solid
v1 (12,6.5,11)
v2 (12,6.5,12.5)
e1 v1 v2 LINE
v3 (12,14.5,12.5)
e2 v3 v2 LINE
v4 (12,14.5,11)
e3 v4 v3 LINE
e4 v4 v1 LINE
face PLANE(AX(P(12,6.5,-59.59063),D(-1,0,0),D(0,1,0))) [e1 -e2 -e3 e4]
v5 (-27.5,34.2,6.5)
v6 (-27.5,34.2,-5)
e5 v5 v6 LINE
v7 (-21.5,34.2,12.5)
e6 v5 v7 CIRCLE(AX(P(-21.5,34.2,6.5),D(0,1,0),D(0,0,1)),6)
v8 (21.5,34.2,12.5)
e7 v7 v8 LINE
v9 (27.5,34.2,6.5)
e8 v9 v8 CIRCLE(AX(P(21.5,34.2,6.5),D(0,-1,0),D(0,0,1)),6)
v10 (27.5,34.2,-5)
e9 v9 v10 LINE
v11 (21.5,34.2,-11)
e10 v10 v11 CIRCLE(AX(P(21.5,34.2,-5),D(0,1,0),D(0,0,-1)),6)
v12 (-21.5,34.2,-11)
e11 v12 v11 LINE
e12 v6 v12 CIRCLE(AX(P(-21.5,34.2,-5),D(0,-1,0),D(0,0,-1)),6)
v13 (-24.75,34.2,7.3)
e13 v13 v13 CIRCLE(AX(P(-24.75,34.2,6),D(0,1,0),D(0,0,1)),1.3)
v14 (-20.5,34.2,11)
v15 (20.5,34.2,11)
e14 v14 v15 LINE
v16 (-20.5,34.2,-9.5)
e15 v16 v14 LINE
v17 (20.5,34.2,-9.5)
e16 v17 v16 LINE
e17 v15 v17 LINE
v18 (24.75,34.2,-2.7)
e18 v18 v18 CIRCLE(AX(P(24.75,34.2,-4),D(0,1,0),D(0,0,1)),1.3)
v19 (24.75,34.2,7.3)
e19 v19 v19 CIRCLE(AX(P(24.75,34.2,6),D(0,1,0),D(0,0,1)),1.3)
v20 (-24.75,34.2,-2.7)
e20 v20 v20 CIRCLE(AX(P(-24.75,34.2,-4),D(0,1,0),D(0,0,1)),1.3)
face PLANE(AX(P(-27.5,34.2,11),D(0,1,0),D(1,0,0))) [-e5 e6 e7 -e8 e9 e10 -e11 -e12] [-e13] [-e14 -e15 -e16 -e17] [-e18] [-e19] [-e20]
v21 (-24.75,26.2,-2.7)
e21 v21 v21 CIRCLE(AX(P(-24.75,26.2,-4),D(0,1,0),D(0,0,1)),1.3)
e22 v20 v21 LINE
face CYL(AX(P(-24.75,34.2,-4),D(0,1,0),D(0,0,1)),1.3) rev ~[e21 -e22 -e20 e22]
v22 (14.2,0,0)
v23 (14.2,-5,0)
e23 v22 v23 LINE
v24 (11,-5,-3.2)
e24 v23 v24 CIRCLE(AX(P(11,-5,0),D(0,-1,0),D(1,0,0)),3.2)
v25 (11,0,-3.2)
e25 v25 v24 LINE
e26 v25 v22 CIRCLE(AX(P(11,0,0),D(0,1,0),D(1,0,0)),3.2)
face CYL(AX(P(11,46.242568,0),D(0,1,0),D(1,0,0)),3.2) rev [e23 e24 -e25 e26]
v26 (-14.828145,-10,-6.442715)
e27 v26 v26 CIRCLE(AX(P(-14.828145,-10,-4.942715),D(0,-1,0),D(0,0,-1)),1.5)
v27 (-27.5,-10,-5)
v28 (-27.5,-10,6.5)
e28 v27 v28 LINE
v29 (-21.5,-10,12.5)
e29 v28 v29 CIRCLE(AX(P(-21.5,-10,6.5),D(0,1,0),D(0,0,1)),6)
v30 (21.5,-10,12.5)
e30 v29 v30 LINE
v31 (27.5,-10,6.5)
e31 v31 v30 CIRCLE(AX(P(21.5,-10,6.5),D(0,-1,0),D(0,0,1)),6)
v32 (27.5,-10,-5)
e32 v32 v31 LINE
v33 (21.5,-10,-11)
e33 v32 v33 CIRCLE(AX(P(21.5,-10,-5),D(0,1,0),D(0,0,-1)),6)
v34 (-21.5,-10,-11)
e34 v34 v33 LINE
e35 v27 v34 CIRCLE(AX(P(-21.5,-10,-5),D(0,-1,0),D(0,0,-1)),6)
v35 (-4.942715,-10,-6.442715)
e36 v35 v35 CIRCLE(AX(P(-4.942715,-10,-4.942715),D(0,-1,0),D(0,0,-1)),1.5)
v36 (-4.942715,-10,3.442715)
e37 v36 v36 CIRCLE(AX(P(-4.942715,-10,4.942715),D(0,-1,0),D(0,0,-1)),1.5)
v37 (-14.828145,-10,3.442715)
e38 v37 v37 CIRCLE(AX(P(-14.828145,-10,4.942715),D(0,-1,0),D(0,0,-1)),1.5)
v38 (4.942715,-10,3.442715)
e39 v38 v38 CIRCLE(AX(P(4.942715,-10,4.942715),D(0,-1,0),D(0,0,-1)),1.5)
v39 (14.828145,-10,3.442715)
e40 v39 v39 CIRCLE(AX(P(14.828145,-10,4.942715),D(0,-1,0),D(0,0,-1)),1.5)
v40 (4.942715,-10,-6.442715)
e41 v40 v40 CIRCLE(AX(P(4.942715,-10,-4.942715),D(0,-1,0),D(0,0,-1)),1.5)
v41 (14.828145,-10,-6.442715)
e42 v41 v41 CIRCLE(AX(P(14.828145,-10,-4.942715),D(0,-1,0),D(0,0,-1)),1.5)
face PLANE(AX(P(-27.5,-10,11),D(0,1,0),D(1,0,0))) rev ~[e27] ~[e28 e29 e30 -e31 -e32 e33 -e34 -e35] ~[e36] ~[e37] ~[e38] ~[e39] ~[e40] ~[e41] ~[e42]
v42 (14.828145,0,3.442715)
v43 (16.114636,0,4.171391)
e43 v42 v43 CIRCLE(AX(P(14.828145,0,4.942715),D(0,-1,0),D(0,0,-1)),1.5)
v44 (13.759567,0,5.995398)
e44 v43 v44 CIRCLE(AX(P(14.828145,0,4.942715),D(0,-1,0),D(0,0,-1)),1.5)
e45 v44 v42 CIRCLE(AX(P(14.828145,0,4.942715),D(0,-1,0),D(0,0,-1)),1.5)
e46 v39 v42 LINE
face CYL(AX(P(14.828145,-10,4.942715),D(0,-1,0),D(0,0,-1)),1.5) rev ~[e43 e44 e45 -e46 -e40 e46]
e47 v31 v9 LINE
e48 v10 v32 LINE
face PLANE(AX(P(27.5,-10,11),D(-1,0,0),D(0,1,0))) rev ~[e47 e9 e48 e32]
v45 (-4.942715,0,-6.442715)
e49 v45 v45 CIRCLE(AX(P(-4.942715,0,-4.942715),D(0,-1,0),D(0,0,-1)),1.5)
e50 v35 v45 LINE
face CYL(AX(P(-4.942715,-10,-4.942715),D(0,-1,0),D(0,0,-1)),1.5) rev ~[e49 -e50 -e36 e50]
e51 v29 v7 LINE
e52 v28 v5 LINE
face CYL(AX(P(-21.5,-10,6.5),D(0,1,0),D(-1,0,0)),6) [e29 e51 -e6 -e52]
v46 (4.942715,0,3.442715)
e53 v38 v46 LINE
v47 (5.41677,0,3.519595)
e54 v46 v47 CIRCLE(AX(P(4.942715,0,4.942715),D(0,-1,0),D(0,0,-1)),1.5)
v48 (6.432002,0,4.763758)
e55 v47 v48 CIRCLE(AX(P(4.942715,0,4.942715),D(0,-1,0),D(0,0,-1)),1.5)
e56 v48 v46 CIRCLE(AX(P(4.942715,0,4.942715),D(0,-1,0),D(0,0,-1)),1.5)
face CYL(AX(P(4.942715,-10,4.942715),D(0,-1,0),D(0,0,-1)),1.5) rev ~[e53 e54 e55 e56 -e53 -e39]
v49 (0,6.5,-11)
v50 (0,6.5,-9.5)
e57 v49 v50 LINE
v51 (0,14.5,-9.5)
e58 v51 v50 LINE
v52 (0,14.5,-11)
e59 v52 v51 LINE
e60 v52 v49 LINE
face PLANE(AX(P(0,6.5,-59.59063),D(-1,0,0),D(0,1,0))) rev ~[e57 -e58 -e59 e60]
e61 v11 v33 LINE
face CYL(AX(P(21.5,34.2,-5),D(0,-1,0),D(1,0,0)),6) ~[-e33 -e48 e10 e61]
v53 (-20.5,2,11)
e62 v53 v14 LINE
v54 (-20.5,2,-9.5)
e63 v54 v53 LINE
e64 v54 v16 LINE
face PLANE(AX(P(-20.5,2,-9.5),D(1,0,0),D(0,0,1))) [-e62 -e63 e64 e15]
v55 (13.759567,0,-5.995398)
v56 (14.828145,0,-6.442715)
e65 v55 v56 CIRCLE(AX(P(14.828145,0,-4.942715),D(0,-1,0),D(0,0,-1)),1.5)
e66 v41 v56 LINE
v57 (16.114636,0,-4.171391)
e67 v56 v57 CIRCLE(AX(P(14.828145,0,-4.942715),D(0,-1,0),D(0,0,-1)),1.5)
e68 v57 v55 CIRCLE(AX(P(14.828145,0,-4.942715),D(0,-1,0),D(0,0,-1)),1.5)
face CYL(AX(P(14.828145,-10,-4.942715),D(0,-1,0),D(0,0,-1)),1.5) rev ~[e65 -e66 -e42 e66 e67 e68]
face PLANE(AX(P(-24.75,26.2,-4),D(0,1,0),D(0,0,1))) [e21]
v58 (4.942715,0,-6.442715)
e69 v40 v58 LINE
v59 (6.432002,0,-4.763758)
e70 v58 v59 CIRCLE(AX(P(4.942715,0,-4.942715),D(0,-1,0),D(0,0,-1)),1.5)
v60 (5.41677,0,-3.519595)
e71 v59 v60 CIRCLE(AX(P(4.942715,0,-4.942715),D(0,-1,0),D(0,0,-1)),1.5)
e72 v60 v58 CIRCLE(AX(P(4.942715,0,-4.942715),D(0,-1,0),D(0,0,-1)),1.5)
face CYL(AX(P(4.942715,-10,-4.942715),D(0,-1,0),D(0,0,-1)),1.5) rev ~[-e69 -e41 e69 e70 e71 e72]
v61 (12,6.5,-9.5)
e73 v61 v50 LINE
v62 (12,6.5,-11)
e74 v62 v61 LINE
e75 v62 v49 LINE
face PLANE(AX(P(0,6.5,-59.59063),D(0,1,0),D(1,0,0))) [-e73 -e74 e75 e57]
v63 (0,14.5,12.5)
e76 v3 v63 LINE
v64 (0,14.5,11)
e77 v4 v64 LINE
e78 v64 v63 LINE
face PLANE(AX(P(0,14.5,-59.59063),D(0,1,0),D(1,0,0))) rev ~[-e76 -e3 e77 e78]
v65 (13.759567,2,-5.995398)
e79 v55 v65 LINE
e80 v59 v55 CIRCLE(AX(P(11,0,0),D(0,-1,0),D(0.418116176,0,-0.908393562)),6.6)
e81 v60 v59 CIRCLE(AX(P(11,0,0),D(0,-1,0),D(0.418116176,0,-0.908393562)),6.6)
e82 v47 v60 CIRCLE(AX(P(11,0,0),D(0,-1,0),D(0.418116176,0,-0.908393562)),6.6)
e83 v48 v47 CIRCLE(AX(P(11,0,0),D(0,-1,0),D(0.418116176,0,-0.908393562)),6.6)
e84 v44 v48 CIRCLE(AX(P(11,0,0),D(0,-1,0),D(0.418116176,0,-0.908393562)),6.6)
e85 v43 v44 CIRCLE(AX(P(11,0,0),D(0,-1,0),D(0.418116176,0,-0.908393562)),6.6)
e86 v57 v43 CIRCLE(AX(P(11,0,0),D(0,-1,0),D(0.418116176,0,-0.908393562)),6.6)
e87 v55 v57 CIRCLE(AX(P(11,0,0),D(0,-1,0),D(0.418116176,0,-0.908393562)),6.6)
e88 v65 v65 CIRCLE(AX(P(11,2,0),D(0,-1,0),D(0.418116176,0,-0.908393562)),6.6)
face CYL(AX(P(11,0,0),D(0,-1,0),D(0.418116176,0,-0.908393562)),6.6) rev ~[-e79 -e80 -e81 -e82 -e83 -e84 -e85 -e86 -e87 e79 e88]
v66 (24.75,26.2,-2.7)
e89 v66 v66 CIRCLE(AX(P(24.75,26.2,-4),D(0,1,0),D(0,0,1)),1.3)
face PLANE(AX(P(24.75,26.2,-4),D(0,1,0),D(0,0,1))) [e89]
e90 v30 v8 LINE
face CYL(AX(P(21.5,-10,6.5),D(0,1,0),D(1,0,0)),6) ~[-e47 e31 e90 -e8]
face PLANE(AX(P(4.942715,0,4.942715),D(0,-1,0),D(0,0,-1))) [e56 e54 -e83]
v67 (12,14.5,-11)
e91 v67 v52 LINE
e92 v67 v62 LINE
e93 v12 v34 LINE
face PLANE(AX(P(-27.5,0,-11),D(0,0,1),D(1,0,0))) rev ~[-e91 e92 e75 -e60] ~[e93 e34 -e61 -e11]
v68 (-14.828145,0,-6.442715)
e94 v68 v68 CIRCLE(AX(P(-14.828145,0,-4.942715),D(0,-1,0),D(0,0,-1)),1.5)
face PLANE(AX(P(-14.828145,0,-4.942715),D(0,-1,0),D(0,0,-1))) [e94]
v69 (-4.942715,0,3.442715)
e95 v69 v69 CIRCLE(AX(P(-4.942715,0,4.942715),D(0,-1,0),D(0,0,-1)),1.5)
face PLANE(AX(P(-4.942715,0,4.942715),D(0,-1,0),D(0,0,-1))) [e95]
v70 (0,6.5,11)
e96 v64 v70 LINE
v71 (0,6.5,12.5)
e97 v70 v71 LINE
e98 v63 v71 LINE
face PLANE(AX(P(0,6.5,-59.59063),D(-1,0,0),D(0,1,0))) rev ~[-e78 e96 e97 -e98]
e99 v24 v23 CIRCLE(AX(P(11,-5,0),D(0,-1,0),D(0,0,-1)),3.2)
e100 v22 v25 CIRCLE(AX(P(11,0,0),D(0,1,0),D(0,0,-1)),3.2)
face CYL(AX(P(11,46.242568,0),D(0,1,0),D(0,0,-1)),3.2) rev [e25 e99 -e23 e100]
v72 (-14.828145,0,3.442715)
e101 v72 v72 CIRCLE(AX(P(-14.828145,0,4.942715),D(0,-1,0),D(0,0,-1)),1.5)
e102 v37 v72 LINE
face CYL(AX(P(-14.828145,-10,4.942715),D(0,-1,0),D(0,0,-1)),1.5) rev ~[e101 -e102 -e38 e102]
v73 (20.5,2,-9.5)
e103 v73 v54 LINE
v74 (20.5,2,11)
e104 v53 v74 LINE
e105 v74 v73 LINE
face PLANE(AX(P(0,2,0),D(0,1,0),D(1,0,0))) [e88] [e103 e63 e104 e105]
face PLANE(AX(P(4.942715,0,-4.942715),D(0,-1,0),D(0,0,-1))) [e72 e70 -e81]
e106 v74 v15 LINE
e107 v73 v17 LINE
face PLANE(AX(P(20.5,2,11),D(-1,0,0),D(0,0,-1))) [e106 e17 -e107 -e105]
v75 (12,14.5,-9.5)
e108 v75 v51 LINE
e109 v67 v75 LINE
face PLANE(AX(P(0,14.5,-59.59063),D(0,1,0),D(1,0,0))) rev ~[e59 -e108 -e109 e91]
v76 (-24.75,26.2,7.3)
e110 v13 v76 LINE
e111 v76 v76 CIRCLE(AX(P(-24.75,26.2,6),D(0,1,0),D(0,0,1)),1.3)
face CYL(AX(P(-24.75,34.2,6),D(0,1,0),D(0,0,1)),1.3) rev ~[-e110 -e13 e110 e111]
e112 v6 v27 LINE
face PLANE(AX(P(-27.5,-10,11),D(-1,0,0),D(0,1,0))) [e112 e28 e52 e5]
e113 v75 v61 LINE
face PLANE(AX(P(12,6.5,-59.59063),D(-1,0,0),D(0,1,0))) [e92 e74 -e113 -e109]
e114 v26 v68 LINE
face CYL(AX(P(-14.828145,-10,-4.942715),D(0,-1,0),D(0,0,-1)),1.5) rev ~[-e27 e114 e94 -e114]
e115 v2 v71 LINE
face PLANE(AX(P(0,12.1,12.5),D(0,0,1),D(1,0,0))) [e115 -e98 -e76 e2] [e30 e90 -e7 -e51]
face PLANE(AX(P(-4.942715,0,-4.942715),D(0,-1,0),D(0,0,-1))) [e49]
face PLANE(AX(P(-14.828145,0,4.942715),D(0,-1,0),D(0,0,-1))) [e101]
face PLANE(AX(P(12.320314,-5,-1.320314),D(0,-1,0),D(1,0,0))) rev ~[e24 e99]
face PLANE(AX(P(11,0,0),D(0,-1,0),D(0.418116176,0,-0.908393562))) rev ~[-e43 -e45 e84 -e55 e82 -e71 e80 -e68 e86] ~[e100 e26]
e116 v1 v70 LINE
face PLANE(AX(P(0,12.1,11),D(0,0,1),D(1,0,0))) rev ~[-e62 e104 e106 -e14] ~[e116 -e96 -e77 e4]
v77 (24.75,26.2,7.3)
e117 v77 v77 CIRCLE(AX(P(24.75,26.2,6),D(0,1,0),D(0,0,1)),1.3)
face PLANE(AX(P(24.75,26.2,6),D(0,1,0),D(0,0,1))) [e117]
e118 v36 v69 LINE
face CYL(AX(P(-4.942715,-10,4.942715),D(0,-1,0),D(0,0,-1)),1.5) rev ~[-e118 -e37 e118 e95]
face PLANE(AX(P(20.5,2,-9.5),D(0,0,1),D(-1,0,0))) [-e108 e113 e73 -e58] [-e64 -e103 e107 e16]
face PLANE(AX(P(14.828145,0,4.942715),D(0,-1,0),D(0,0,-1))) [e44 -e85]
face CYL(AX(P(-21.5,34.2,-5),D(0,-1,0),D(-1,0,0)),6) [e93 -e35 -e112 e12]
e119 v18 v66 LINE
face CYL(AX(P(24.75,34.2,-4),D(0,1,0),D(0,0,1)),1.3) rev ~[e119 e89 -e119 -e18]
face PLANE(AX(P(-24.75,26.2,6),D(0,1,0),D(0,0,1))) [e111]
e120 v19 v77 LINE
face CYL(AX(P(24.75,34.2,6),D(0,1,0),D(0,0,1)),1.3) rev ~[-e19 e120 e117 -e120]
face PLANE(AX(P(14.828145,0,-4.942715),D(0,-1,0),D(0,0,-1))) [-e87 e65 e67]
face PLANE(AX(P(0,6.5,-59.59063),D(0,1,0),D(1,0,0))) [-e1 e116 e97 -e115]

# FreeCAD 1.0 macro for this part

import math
import FreeCAD as App
import Part
import Sketcher
Q = App.Units.Quantity


def edges_at(feature, points):
    """Names of the edges that pass closest to the given points."""
    edges = feature.Shape.Edges
    near = lambda p: min(range(len(edges)), key=lambda i: edges[i].distToShape(Part.Vertex(*p))[0])
    return sorted({f"Edge{near(p) + 1}" for p in points})


def add_polygon(sketch, points):
    """Adds a closed chain of lines whose ends are joined by coincident constraints."""
    first, n = sketch.GeometryCount, len(points)
    for a, b in zip(points, points[1:] + points[:1]):
        sketch.addGeometry(Part.LineSegment(App.Vector(*a, 0), App.Vector(*b, 0)), False)
    for i in range(n):
        sketch.addConstraint(Sketcher.Constraint("Coincident", first + i, 2, first + (i + 1) % n, 1))

doc = App.newDocument("Part")
body = doc.addObject("PartDesign::Body", "Body")

sketch1 = body.newObject("Sketcher::SketchObject", "Sketch")
sketch1.AttachmentSupport = (doc.getObject("XZ_Plane"), [""])
sketch1.MapMode = "FlatFace"
add_polygon(sketch1, [(-28, -11), (-28, 11), (28, 11), (28, -11)])
sketch1.addConstraint(Sketcher.Constraint("Vertical", 0))
sketch1.addConstraint(Sketcher.Constraint("Horizontal", 1))
sketch1.addConstraint(Sketcher.Constraint("Vertical", 2))
sketch1.addConstraint(Sketcher.Constraint("Horizontal", 3))
sketch1.addConstraint(Sketcher.Constraint("Symmetric", 0, 2, 2, 2, -1, 1))
sketch1.addConstraint(Sketcher.Constraint("DistanceX", 1, 1, 1, 2, Q("55 mm")))
sketch1.addConstraint(Sketcher.Constraint("DistanceY", 0, 1, 0, 2, Q("22 mm")))
pad1 = body.newObject("PartDesign::Pad", "Pad")
pad1.Profile = sketch1
pad1.Length = 2
pad1.Reversed = True

sketch2 = body.newObject("Sketcher::SketchObject", "Sketch001")
sketch2.AttachmentSupport = (doc.getObject("XZ_Plane"), [""])
sketch2.MapMode = "FlatFace"
sketch2.AttachmentOffset = App.Placement(App.Vector(0, 0, -2), App.Rotation())
add_polygon(sketch2, [(-28, -11), (-28, 11), (-20, 11), (-20, -10), (20, -10), (20, 11), (28, 11), (28, -11)])
sketch2.addConstraint(Sketcher.Constraint("Vertical", 0))
sketch2.addConstraint(Sketcher.Constraint("Horizontal", 1))
sketch2.addConstraint(Sketcher.Constraint("Vertical", 2))
sketch2.addConstraint(Sketcher.Constraint("Horizontal", 3))
sketch2.addConstraint(Sketcher.Constraint("Vertical", 4))
sketch2.addConstraint(Sketcher.Constraint("Horizontal", 5))
sketch2.addConstraint(Sketcher.Constraint("Vertical", 6))
sketch2.addConstraint(Sketcher.Constraint("Horizontal", 7))
sketch2.addConstraint(Sketcher.Constraint("Symmetric", 0, 2, 6, 2, -1, 1))
sketch2.addConstraint(Sketcher.Constraint("Symmetric", 1, 2, 4, 2, -2))
sketch2.addConstraint(Sketcher.Constraint("DistanceX", 1, 1, 1, 2, Q("7 mm")))
sketch2.addConstraint(Sketcher.Constraint("DistanceX", 3, 1, 3, 2, Q("41 mm")))
sketch2.addConstraint(Sketcher.Constraint("DistanceY", 0, 1, 0, 2, Q("22 mm")))
sketch2.addConstraint(Sketcher.Constraint("DistanceY", 2, 2, 2, 1, Q("20.5 mm")))
pad2 = body.newObject("PartDesign::Pad", "Pad001")
pad2.Profile = sketch2
pad2.Length = 32.2
pad2.Reversed = True

sketch3 = body.newObject("Sketcher::SketchObject", "Sketch002")
sketch3.AttachmentSupport = (doc.getObject("XZ_Plane"), [""])
sketch3.MapMode = "FlatFace"
sketch3.AttachmentOffset = App.Placement(App.Vector(0, 0, -34.2), App.Rotation())
sketch3.addGeometry(Part.Circle(App.Vector(-24.8, 6, 0), App.Vector(0, 0, 1), 1.3), False)
sketch3.addGeometry(Part.Circle(App.Vector(-24.8, -4, 0), App.Vector(0, 0, 1), 1.3), False)
sketch3.addGeometry(Part.Circle(App.Vector(24.8, -4, 0), App.Vector(0, 0, 1), 1.3), False)
sketch3.addGeometry(Part.Circle(App.Vector(24.8, 6, 0), App.Vector(0, 0, 1), 1.3), False)
sketch3.addConstraint(Sketcher.Constraint("Equal", 0, 1))
sketch3.addConstraint(Sketcher.Constraint("Equal", 1, 2))
sketch3.addConstraint(Sketcher.Constraint("Equal", 2, 3))
sketch3.addConstraint(Sketcher.Constraint("Symmetric", 1, 3, 2, 3, -2))
sketch3.addConstraint(Sketcher.Constraint("Symmetric", 0, 3, 3, 3, -2))
sketch3.addConstraint(Sketcher.Constraint("Vertical", 0, 3, 1, 3))
sketch3.addConstraint(Sketcher.Constraint("Diameter", 0, Q("2.6 mm")))
sketch3.addConstraint(Sketcher.Constraint("DistanceY", -1, 1, 0, 3, Q("6 mm")))
sketch3.addConstraint(Sketcher.Constraint("DistanceY", 1, 3, -1, 1, Q("4 mm")))
sketch3.addConstraint(Sketcher.Constraint("DistanceX", 1, 3, 2, 3, Q("49.5 mm")))
pocket1 = body.newObject("PartDesign::Pocket", "Pocket")
pocket1.Profile = sketch3
pocket1.Length = 8
pocket1.Reversed = True

sketch4 = body.newObject("Sketcher::SketchObject", "Sketch003")
sketch4.AttachmentSupport = (doc.getObject("XZ_Plane"), [""])
sketch4.MapMode = "FlatFace"
add_polygon(sketch4, [(-28, -11), (-28, 11), (28, 11), (28, -11)])
sketch4.addConstraint(Sketcher.Constraint("Vertical", 0))
sketch4.addConstraint(Sketcher.Constraint("Horizontal", 1))
sketch4.addConstraint(Sketcher.Constraint("Vertical", 2))
sketch4.addConstraint(Sketcher.Constraint("Horizontal", 3))
sketch4.addConstraint(Sketcher.Constraint("Symmetric", 0, 2, 2, 2, -1, 1))
sketch4.addConstraint(Sketcher.Constraint("DistanceX", 1, 1, 1, 2, Q("55 mm")))
sketch4.addConstraint(Sketcher.Constraint("DistanceY", 0, 1, 0, 2, Q("22 mm")))
pad3 = body.newObject("PartDesign::Pad", "Pad002")
pad3.Profile = sketch4
pad3.Length = 10

sketch5 = body.newObject("Sketcher::SketchObject", "Sketch004")
sketch5.AttachmentSupport = (doc.getObject("XZ_Plane"), [""])
sketch5.MapMode = "FlatFace"
sketch5.AttachmentOffset = App.Placement(App.Vector(0, 0, 10), App.Rotation())
sketch5.addGeometry(Part.Circle(App.Vector(14.8, -4.9, 0), App.Vector(0, 0, 1), 1.5), False)
sketch5.addGeometry(Part.Circle(App.Vector(14.8, 4.9, 0), App.Vector(0, 0, 1), 1.5), False)
sketch5.addGeometry(Part.Circle(App.Vector(4.9, -4.9, 0), App.Vector(0, 0, 1), 1.5), False)
sketch5.addGeometry(Part.Circle(App.Vector(4.9, 4.9, 0), App.Vector(0, 0, 1), 1.5), False)
sketch5.addGeometry(Part.Circle(App.Vector(-4.9, -4.9, 0), App.Vector(0, 0, 1), 1.5), False)
sketch5.addGeometry(Part.Circle(App.Vector(-4.9, 4.9, 0), App.Vector(0, 0, 1), 1.5), False)
sketch5.addGeometry(Part.Circle(App.Vector(-14.8, -4.9, 0), App.Vector(0, 0, 1), 1.5), False)
sketch5.addGeometry(Part.Circle(App.Vector(-14.8, 4.9, 0), App.Vector(0, 0, 1), 1.5), False)
sketch5.addConstraint(Sketcher.Constraint("Equal", 0, 1))
sketch5.addConstraint(Sketcher.Constraint("Equal", 1, 2))
sketch5.addConstraint(Sketcher.Constraint("Equal", 2, 3))
sketch5.addConstraint(Sketcher.Constraint("Equal", 3, 4))
sketch5.addConstraint(Sketcher.Constraint("Equal", 4, 5))
sketch5.addConstraint(Sketcher.Constraint("Equal", 5, 6))
sketch5.addConstraint(Sketcher.Constraint("Equal", 6, 7))
sketch5.addConstraint(Sketcher.Constraint("Symmetric", 3, 3, 4, 3, -1, 1))
sketch5.addConstraint(Sketcher.Constraint("Symmetric", 2, 3, 5, 3, -1, 1))
sketch5.addConstraint(Sketcher.Constraint("Symmetric", 1, 3, 6, 3, -1, 1))
sketch5.addConstraint(Sketcher.Constraint("Symmetric", 0, 3, 7, 3, -1, 1))
sketch5.addConstraint(Sketcher.Constraint("Symmetric", 2, 3, 4, 3, -2))
sketch5.addConstraint(Sketcher.Constraint("Symmetric", 0, 3, 6, 3, -2))
sketch5.addConstraint(Sketcher.Constraint("Horizontal", 0, 3, 2, 3))
sketch5.addConstraint(Sketcher.Constraint("Diameter", 0, Q("3 mm")))
sketch5.addConstraint(Sketcher.Constraint("DistanceY", 0, 3, 1, 3, Q("9.88543 mm")))
sketch5.addConstraint(Sketcher.Constraint("DistanceX", 2, 3, 0, 3, Q("9.88543 mm")))
sketch5.addConstraint(Sketcher.Constraint("DistanceX", 4, 3, 2, 3, Q("9.88543 mm")))
pocket2 = body.newObject("PartDesign::Pocket", "Pocket001")
pocket2.Profile = sketch5
pocket2.Length = 10

sketch6 = body.newObject("Sketcher::SketchObject", "Sketch005")
sketch6.AttachmentSupport = (doc.getObject("XZ_Plane"), [""])
sketch6.MapMode = "FlatFace"
sketch6.addGeometry(Part.ArcOfCircle(Part.Circle(App.Vector(11, 0, 0), App.Vector(0, 0, 1), 3.2), math.radians(-90), math.radians(0)), False)
sketch6.addGeometry(Part.ArcOfCircle(Part.Circle(App.Vector(11, 0, 0), App.Vector(0, 0, 1), 3.2), math.radians(0), math.radians(270)), False)
sketch6.addConstraint(Sketcher.Constraint("Tangent", 0, 1, 1, 2))
sketch6.addConstraint(Sketcher.Constraint("Coincident", 1, 1, 0, 2))
sketch6.addConstraint(Sketcher.Constraint("PointOnObject", 0, 3, -1))
sketch6.addConstraint(Sketcher.Constraint("PointOnObject", 1, 1, -1))
sketch6.addConstraint(Sketcher.Constraint("Vertical", 1, 3, 0, 1))
sketch6.addConstraint(Sketcher.Constraint("Radius", 0, Q("3.2 mm")))
sketch6.addConstraint(Sketcher.Constraint("DistanceX", -1, 1, 0, 3, Q("11 mm")))
pocket3 = body.newObject("PartDesign::Pocket", "Pocket002")
pocket3.Profile = sketch6
pocket3.Type = "TwoLengths"
pocket3.Length = 5
pocket3.Length2 = 46.242568
pocket3.Reversed = True

sketch7 = body.newObject("Sketcher::SketchObject", "Sketch006")
sketch7.AttachmentSupport = (doc.getObject("XZ_Plane"), [""])
sketch7.MapMode = "FlatFace"
sketch7.addGeometry(Part.Circle(App.Vector(11, 0, 0), App.Vector(0, 0, 1), 7), False)
sketch7.addConstraint(Sketcher.Constraint("PointOnObject", 0, 3, -1))
sketch7.addConstraint(Sketcher.Constraint("Diameter", 0, Q("13.2 mm")))
sketch7.addConstraint(Sketcher.Constraint("DistanceX", -1, 1, 0, 3, Q("11 mm")))
pocket4 = body.newObject("PartDesign::Pocket", "Pocket003")
pocket4.Profile = sketch7
pocket4.Length = 10

sketch8 = body.newObject("Sketcher::SketchObject", "Sketch007")
sketch8.AttachmentSupport = (doc.getObject("XY_Plane"), [""])
sketch8.MapMode = "FlatFace"
sketch8.AttachmentOffset = App.Placement(App.Vector(0, 0, 11), App.Rotation())
add_polygon(sketch8, [(-28, 34), (-28, -10), (28, -10), (28, 34)])
sketch8.addConstraint(Sketcher.Constraint("Vertical", 0))
sketch8.addConstraint(Sketcher.Constraint("Horizontal", 1))
sketch8.addConstraint(Sketcher.Constraint("Vertical", 2))
sketch8.addConstraint(Sketcher.Constraint("Horizontal", 3))
sketch8.addConstraint(Sketcher.Constraint("DistanceX", 1, 1, 1, 2, Q("55 mm")))
sketch8.addConstraint(Sketcher.Constraint("DistanceY", 0, 2, 0, 1, Q("44.2 mm")))
sketch8.addConstraint(Sketcher.Constraint("DistanceY", 0, 2, -1, 1, Q("10 mm")))
sketch8.addConstraint(Sketcher.Constraint("DistanceX", 0, 2, -1, 1, Q("27.5 mm")))
pad4 = body.newObject("PartDesign::Pad", "Pad003")
pad4.Profile = sketch8
pad4.Length = 1.5
doc.recompute()

fillet = body.newObject("PartDesign::Fillet", "Fillet")
fillet.Base = (pad4, edges_at(pad4, [
    (27.5, 12.1, 12.5),
    (-27.5, 12.1, 12.5),
    (-27.5, 12.1, -11),
    (27.5, 12.1, -11),
]))
fillet.Radius = 6

sketch9 = body.newObject("Sketcher::SketchObject", "Sketch008")
sketch9.AttachmentSupport = (doc.getObject("XY_Plane"), [""])
sketch9.MapMode = "FlatFace"
sketch9.AttachmentOffset = App.Placement(App.Vector(0, 0, -9.5), App.Rotation())
add_polygon(sketch9, [(0, 14), (0, 6), (12, 6), (12, 14)])
sketch9.addConstraint(Sketcher.Constraint("Vertical", 0))
sketch9.addConstraint(Sketcher.Constraint("Horizontal", 1))
sketch9.addConstraint(Sketcher.Constraint("Vertical", 2))
sketch9.addConstraint(Sketcher.Constraint("Horizontal", 3))
sketch9.addConstraint(Sketcher.Constraint("PointOnObject", 0, 2, -2))
sketch9.addConstraint(Sketcher.Constraint("DistanceX", 1, 1, 1, 2, Q("12 mm")))
sketch9.addConstraint(Sketcher.Constraint("DistanceY", 0, 2, 0, 1, Q("8 mm")))
sketch9.addConstraint(Sketcher.Constraint("DistanceY", -1, 1, 0, 2, Q("6.5 mm")))
pocket5 = body.newObject("PartDesign::Pocket", "Pocket004")
pocket5.Profile = sketch9
pocket5.Type = "ThroughAll"
pocket5.Midplane = True

doc.recompute()
